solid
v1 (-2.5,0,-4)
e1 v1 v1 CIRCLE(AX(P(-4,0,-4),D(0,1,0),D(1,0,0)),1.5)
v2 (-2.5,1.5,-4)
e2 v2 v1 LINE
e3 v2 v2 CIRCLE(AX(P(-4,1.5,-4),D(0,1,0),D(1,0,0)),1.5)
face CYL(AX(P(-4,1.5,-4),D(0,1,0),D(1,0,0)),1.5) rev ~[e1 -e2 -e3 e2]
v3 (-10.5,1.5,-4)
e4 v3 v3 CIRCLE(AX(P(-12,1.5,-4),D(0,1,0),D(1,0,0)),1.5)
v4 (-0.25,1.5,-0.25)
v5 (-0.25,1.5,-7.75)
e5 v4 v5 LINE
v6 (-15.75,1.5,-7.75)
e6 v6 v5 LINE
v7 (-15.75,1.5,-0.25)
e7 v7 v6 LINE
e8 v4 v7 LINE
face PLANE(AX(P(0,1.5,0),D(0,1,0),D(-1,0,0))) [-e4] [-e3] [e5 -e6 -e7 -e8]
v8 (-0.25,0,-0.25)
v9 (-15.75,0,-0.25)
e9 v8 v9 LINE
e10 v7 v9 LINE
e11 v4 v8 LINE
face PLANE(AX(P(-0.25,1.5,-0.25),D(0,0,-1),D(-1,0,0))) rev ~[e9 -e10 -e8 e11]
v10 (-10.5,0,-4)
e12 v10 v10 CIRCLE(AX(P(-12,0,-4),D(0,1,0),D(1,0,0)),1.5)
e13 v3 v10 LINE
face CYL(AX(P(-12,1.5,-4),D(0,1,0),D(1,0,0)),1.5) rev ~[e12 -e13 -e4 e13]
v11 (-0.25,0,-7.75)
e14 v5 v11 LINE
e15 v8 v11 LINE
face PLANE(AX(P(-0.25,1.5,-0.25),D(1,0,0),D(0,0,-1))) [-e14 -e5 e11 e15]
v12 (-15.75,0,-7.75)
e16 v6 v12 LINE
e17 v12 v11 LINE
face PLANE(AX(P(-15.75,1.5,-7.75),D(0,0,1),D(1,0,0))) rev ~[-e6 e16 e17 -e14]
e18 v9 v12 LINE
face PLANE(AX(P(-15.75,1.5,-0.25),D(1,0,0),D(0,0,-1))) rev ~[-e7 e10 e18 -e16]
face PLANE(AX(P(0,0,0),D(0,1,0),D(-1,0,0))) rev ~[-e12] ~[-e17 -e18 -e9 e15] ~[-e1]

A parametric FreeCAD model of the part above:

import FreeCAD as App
import Part
import Sketcher

V = App.Vector
Q = App.Units.Quantity


def add_polygon(sketch, points):
    """Adds a closed chain of lines whose ends are joined by coincident constraints."""
    first, n = sketch.GeometryCount, len(points)
    for a, b in zip(points, points[1:] + points[:1]):
        sketch.addGeometry(Part.LineSegment(App.Vector(*a, 0), App.Vector(*b, 0)), False)
    for i in range(n):
        sketch.addConstraint(Sketcher.Constraint("Coincident", first + i, 2, first + (i + 1) % n, 1))

doc = App.newDocument("Part")
body = doc.addObject("PartDesign::Body", "Body")

# Sketch on XZ plane
sketch1 = body.newObject("Sketcher::SketchObject", "Sketch")
sketch1.AttachmentSupport = (doc.getObject("XZ_Plane"), [""])
sketch1.MapMode = "FlatFace"
add_polygon(sketch1, [(-16, 0), (0, 0), (0, -8), (-16, -8)])  # lines 0-3
sketch1.addConstraint([
    Sketcher.Constraint("Horizontal", 0),
    Sketcher.Constraint("Vertical", 1),
    Sketcher.Constraint("Horizontal", 2),
    Sketcher.Constraint("Vertical", 3),
    Sketcher.Constraint("Coincident", 0, 2, -1, 1),
    Sketcher.Constraint("DistanceX", 0, 1, 0, 2, Q("16 mm")),
    Sketcher.Constraint("DistanceY", 1, 2, 1, 1, Q("8 mm")),
])
pad1 = body.newObject("PartDesign::Pad", "Pad")
pad1.Profile = sketch1
pad1.Length = 1.5
pad1.Reversed = True

# Sketch on XZ plane
sketch2 = body.newObject("Sketcher::SketchObject", "Sketch001")
sketch2.AttachmentSupport = (doc.getObject("XZ_Plane"), [""])
sketch2.MapMode = "FlatFace"
sketch2.AttachmentOffset = App.Placement(V(0, 0, -1.5), App.Rotation())
sketch2.addGeometry([
    Part.Circle(V(-4, -4, 0), V(0, 0, 1), 1.5),
    Part.Circle(V(-12, -4, 0), V(0, 0, 1), 1.5),
], False)
sketch2.addConstraint([
    Sketcher.Constraint("Equal", 0, 1),
    Sketcher.Constraint("Horizontal", 0, 3, 1, 3),
    Sketcher.Constraint("Diameter", 0, Q("3 mm")),
    Sketcher.Constraint("DistanceX", 0, 3, -1, 1, Q("4 mm")),
    Sketcher.Constraint("DistanceY", 0, 3, -1, 1, Q("4 mm")),
    Sketcher.Constraint("DistanceX", 1, 3, -1, 1, Q("12 mm")),
])
pocket1 = body.newObject("PartDesign::Pocket", "Pocket")
pocket1.Profile = sketch2
pocket1.Length = 1.5
pocket1.Reversed = True

# Sketch on XZ plane
sketch3 = body.newObject("Sketcher::SketchObject", "Sketch002")
sketch3.AttachmentSupport = (doc.getObject("XZ_Plane"), [""])
sketch3.MapMode = "FlatFace"
sketch3.AttachmentOffset = App.Placement(V(0, 0, -1.5), App.Rotation())
add_polygon(sketch3, [(-16, 0), (0, 0), (0, -8), (-16, -8)])  # lines 0-3
add_polygon(sketch3, [(-15.75, -0.25), (-15.75, -7.75), (-0.25, -7.75), (-0.25, -0.25)])  # lines 4-7
sketch3.addConstraint([
    Sketcher.Constraint("Horizontal", 0),
    Sketcher.Constraint("Vertical", 1),
    Sketcher.Constraint("Horizontal", 2),
    Sketcher.Constraint("Vertical", 3),
    Sketcher.Constraint("Vertical", 4),
    Sketcher.Constraint("Horizontal", 5),
    Sketcher.Constraint("Vertical", 6),
    Sketcher.Constraint("Horizontal", 7),
    Sketcher.Constraint("Coincident", 0, 2, -1, 1),
    Sketcher.Constraint("DistanceX", 0, 1, 0, 2, Q("16 mm")),
    Sketcher.Constraint("DistanceY", 1, 2, 1, 1, Q("8 mm")),
    Sketcher.Constraint("DistanceX", 5, 2, -1, 1, Q("0.25 mm")),
    Sketcher.Constraint("DistanceY", 6, 2, -1, 1, Q("0.25 mm")),
    Sketcher.Constraint("DistanceX", 2, 2, 4, 2, Q("0.25 mm")),
    Sketcher.Constraint("DistanceY", 2, 2, 4, 2, Q("0.25 mm")),
])
pocket2 = body.newObject("PartDesign::Pocket", "Pocket001")
pocket2.Profile = sketch3
pocket2.Length = 1.5
pocket2.Reversed = True

doc.recompute()
